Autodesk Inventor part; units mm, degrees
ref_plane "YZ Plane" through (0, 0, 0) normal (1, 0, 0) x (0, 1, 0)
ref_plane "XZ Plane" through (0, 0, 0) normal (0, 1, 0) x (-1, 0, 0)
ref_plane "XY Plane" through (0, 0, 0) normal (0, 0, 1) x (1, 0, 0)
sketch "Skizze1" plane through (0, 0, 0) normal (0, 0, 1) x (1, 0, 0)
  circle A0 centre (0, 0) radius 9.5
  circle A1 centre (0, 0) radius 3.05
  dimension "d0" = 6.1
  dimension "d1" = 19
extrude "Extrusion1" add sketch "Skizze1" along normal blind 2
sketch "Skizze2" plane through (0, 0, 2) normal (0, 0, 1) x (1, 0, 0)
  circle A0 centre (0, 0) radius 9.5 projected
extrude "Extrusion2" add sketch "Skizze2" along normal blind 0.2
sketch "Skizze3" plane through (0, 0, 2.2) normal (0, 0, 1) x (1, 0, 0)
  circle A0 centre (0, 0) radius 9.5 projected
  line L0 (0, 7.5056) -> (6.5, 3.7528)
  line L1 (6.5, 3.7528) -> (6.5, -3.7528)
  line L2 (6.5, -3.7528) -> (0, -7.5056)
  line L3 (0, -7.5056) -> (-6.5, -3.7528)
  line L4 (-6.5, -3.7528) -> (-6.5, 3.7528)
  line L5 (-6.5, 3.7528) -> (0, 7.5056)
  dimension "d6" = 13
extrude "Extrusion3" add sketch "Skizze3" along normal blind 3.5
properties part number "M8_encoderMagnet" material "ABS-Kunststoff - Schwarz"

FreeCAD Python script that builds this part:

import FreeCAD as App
import Part
import Sketcher
from FreeCAD import Vector
Q = App.Units.Quantity

doc = App.newDocument("Part")
body = doc.addObject("PartDesign::Body", "Body")

sketch1 = body.newObject("Sketcher::SketchObject", "Sketch")
sketch1.AttachmentSupport = (doc.getObject("XY_Plane"), [""])
sketch1.MapMode = "FlatFace"
sketch1.addGeometry([
    Part.Circle(Vector(0, 0, 0), Vector(0, 0, 1), 9.5),
    Part.Circle(Vector(0, 0, 0), Vector(0, 0, 1), 3.05),
], False)
sketch1.addConstraint([
    Sketcher.Constraint("Coincident", 0, 3, -1, 1),
    Sketcher.Constraint("Coincident", 1, 3, -1, 1),
    Sketcher.Constraint("Diameter", 0, Q("19 mm")),
    Sketcher.Constraint("Diameter", 1, Q("6.1 mm")),
])
pad1 = body.newObject("PartDesign::Pad", "Pad")
pad1.Profile = sketch1
pad1.Length = 2

sketch2 = body.newObject("Sketcher::SketchObject", "Sketch001")
sketch2.AttachmentSupport = (doc.getObject("XY_Plane"), [""])
sketch2.MapMode = "FlatFace"
sketch2.AttachmentOffset = App.Placement(Vector(0, 0, 2), App.Rotation())
sketch2.addGeometry(Part.Circle(Vector(0, 0, 0), Vector(0, 0, 1), 9.5), False)
sketch2.addConstraint([
    Sketcher.Constraint("Coincident", 0, 3, -1, 1),
    Sketcher.Constraint("Diameter", 0, Q("19 mm")),
])
pad2 = body.newObject("PartDesign::Pad", "Pad001")
pad2.Profile = sketch2
pad2.Length = 0.2

sketch3 = body.newObject("Sketcher::SketchObject", "Sketch002")
sketch3.AttachmentSupport = (doc.getObject("XY_Plane"), [""])
sketch3.MapMode = "FlatFace"
sketch3.AttachmentOffset = App.Placement(Vector(0, 0, 2.2), App.Rotation())
sketch3.addGeometry([
    Part.Circle(Vector(0, 0, 0), Vector(0, 0, 1), 9.5),
    Part.LineSegment(Vector(-6.5, 3.7528, 0), Vector(0, 7.5056, 0)),
    Part.LineSegment(Vector(0, 7.5056, 0), Vector(6.5, 3.7528, 0)),
    Part.LineSegment(Vector(6.5, 3.7528, 0), Vector(6.5, -3.7528, 0)),
    Part.LineSegment(Vector(6.5, -3.7528, 0), Vector(0, -7.5056, 0)),
    Part.LineSegment(Vector(0, -7.5056, 0), Vector(-6.5, -3.7528, 0)),
    Part.LineSegment(Vector(-6.5, -3.7528, 0), Vector(-6.5, 3.7528, 0)),
], False)
sketch3.addConstraint([
    Sketcher.Constraint("Coincident", 1, 2, 2, 1),
    Sketcher.Constraint("Coincident", 2, 2, 3, 1),
    Sketcher.Constraint("Coincident", 3, 2, 4, 1),
    Sketcher.Constraint("Coincident", 4, 2, 5, 1),
    Sketcher.Constraint("Coincident", 5, 2, 6, 1),
    Sketcher.Constraint("Coincident", 6, 2, 1, 1),
    Sketcher.Constraint("Vertical", 3),
    Sketcher.Constraint("Vertical", 6),
    Sketcher.Constraint("Coincident", 0, 3, -1, 1),
    Sketcher.Constraint("Symmetric", 1, 2, 4, 2, -1, 1),
    Sketcher.Constraint("Symmetric", 2, 2, 5, 2, -1, 1),
    Sketcher.Constraint("PointOnObject", 1, 2, -2),
    Sketcher.Constraint("Parallel", 1, 4),
    Sketcher.Constraint("Horizontal", 3, 2, 5, 2),
    Sketcher.Constraint("Diameter", 0, Q("19 mm")),
    Sketcher.Constraint("DistanceX", 5, 2, 3, 2, Q("13 mm")),
    Sketcher.Constraint("Angle", 1, Q("30.0002 deg")),
    Sketcher.Constraint("DistanceY", 3, 2, 3, 1, Q("7.5056 mm")),
])
pad3 = body.newObject("PartDesign::Pad", "Pad002")
pad3.Profile = sketch3
pad3.Length = 3.5

doc.recompute()
